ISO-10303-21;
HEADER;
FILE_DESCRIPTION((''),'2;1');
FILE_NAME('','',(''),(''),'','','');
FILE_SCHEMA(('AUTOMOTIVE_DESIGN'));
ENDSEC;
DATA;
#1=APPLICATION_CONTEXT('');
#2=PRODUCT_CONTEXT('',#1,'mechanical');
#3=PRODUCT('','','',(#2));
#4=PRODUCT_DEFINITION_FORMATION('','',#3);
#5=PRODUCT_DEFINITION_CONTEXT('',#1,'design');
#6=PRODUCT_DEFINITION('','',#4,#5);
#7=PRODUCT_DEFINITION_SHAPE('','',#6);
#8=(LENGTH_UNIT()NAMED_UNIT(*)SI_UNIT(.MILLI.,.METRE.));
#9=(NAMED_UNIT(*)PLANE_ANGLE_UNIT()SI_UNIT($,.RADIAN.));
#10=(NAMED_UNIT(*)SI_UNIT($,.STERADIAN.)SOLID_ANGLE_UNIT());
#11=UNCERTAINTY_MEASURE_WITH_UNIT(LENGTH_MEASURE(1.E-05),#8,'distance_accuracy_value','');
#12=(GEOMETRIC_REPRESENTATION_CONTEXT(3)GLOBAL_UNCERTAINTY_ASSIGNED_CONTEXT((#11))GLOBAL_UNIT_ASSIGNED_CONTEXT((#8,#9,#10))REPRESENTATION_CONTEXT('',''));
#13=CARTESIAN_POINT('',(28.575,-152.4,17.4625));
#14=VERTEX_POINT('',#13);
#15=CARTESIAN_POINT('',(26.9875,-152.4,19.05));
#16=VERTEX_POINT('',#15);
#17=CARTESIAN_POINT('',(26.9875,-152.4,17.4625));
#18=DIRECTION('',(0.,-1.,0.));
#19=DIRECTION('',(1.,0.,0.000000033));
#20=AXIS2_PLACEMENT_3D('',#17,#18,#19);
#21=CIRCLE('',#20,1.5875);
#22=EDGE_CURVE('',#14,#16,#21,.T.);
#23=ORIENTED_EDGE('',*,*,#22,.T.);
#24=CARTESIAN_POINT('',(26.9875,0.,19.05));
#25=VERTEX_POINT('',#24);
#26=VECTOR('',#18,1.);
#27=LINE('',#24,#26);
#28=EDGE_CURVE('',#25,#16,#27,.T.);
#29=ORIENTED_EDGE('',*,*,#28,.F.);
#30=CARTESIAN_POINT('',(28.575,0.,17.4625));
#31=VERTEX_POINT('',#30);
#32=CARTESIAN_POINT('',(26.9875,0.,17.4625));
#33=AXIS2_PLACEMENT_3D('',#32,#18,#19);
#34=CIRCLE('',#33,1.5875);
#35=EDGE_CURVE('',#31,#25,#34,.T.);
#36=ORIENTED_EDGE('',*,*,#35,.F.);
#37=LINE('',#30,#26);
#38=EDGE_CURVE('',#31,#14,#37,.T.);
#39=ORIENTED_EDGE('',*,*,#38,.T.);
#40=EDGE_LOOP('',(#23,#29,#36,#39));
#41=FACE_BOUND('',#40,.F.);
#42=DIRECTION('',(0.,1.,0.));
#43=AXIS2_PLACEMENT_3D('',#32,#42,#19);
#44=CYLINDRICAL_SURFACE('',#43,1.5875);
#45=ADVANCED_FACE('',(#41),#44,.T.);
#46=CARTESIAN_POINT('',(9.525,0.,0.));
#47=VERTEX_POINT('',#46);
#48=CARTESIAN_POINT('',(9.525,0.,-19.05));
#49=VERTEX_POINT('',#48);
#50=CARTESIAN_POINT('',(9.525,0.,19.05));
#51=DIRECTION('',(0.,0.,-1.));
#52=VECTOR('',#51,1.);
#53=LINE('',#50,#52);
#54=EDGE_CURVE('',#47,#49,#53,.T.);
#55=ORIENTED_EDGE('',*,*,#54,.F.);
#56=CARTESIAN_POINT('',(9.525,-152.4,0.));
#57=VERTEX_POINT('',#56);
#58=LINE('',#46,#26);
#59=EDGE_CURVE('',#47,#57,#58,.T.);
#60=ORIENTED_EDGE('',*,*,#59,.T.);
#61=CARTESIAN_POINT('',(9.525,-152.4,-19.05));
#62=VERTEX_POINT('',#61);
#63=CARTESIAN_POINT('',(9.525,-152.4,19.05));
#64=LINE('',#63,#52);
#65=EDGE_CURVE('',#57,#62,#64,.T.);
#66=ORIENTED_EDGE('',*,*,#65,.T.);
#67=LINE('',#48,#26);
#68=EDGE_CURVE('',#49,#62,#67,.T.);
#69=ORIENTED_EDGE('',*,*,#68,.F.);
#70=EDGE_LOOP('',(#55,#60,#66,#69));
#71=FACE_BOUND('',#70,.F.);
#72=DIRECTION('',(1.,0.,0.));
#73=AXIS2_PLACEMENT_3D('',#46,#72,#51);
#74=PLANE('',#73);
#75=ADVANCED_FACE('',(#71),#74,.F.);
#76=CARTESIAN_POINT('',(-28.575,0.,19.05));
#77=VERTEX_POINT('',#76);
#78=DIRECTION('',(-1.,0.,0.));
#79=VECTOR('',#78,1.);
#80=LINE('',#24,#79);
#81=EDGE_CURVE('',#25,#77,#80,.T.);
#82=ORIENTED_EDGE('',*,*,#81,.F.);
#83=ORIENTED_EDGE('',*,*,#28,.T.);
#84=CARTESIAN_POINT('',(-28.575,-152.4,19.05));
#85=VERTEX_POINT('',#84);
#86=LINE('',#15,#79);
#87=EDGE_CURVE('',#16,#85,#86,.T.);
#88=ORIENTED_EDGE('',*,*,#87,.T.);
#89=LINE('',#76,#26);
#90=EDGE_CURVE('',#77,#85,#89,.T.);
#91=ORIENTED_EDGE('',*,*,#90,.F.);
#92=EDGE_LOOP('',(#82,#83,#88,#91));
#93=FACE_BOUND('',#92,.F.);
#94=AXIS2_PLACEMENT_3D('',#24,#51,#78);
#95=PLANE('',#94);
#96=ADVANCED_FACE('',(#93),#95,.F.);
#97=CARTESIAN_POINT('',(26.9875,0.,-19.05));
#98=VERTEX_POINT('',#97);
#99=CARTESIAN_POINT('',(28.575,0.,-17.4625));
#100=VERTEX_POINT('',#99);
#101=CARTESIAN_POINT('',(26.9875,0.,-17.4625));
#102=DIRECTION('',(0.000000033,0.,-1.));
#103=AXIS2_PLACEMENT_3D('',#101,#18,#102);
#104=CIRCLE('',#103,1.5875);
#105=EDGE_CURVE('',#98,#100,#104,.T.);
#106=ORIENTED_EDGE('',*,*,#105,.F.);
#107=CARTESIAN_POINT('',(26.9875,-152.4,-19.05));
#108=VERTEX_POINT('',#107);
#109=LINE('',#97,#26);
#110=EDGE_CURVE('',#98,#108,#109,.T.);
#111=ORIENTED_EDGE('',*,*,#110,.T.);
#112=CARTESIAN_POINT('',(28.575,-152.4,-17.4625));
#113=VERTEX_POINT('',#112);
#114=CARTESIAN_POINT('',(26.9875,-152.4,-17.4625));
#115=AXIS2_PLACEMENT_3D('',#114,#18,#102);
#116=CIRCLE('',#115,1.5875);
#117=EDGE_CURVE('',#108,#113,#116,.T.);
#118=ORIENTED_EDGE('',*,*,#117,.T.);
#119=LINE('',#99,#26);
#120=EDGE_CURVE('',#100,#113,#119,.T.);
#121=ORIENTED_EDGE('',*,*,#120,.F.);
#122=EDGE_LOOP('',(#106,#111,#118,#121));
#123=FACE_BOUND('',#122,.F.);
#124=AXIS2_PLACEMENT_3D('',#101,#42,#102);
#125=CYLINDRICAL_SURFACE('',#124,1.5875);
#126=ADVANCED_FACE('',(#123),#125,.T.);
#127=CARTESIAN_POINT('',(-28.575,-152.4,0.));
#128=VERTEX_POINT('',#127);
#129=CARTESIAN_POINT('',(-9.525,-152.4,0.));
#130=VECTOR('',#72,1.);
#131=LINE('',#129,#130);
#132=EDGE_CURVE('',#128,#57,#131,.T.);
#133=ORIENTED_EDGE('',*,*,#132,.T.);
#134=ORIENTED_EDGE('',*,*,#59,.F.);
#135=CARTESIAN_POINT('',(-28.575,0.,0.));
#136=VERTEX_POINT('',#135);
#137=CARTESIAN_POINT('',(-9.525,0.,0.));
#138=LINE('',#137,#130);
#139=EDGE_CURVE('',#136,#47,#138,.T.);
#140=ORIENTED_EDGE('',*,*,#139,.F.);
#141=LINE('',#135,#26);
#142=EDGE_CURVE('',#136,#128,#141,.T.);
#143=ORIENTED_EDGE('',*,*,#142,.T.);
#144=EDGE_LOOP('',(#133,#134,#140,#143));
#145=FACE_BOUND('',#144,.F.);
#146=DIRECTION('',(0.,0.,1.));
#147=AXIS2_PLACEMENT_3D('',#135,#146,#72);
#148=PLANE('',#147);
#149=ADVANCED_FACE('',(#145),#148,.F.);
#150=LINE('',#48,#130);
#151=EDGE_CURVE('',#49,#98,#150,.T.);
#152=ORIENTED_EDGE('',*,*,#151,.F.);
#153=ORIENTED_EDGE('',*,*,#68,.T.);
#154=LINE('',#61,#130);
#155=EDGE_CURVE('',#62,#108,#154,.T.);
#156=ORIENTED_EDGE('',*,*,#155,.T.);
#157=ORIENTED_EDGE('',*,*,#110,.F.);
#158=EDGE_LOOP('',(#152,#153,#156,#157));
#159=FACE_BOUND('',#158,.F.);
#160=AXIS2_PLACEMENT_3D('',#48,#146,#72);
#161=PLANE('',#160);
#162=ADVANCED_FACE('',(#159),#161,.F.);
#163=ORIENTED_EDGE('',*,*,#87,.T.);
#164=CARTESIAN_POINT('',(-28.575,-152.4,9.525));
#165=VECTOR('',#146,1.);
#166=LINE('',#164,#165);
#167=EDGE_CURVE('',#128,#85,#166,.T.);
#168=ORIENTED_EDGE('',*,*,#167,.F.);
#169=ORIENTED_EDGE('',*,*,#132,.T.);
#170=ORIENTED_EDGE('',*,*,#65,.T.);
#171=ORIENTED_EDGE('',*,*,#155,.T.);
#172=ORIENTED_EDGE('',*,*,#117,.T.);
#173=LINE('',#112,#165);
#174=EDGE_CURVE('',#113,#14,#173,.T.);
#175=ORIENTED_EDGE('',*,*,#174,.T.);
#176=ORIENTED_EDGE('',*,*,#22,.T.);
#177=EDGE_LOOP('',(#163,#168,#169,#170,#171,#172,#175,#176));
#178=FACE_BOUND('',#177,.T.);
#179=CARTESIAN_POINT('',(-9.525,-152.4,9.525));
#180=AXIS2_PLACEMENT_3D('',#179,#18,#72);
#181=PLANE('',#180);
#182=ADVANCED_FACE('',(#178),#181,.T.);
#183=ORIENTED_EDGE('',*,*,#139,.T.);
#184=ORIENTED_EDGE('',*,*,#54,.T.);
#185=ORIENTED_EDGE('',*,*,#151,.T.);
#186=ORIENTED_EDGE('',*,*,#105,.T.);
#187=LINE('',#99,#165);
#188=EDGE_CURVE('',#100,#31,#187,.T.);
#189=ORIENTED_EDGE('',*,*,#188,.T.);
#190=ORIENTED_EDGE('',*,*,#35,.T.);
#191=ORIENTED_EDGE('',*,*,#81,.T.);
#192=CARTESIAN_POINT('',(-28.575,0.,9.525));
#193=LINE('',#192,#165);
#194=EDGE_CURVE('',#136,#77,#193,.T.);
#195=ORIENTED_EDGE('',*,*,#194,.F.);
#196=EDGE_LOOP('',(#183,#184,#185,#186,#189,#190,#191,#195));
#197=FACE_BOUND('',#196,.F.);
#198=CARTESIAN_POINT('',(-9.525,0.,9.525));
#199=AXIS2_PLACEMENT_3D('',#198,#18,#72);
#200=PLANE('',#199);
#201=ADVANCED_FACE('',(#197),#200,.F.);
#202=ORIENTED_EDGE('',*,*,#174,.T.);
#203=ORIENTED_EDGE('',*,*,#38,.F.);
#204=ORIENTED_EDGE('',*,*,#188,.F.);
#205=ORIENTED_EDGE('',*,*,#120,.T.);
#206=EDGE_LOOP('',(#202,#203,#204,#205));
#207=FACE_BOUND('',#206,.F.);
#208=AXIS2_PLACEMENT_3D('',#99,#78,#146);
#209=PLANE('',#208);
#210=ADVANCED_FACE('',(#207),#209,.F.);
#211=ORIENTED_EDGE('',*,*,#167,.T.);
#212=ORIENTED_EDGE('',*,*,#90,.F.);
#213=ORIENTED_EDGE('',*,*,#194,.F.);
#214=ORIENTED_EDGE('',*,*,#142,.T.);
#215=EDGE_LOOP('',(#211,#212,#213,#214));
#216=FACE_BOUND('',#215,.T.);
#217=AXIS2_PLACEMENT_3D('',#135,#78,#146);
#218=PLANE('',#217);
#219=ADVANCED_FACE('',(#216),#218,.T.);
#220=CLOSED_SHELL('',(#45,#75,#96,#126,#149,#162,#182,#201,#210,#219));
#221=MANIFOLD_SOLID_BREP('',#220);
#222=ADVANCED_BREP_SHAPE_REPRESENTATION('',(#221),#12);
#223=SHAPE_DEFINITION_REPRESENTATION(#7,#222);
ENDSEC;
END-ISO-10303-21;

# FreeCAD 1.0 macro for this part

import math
import FreeCAD as App
import Part
import Sketcher
from FreeCAD import Vector
Q = App.Units.Quantity

doc = App.newDocument("Part")
body = doc.addObject("PartDesign::Body", "Body")

# Sketch on XZ plane
sketch1 = body.newObject("Sketcher::SketchObject", "Sketch")
sketch1.AttachmentSupport = (doc.getObject("XZ_Plane"), [""])
sketch1.MapMode = "FlatFace"
sketch1.addGeometry(Part.LineSegment(Vector(-28.6, 19.1, 0), Vector(-28.6, 0, 0)), False)
sketch1.addGeometry(Part.LineSegment(Vector(-28.6, 0, 0), Vector(9.5, 0, 0)), False)
sketch1.addGeometry(Part.LineSegment(Vector(9.5, 0, 0), Vector(9.5, -19.1, 0)), False)
sketch1.addGeometry(Part.LineSegment(Vector(9.5, -19.1, 0), Vector(27, -19.1, 0)), False)
sketch1.addGeometry(Part.ArcOfCircle(Part.Circle(Vector(27, -17.5, 0), Vector(0, 0, 1), 1.6), math.radians(-90), math.radians(0)), False)
sketch1.addGeometry(Part.LineSegment(Vector(28.6, -17.5, 0), Vector(28.6, 17.5, 0)), False)
sketch1.addGeometry(Part.ArcOfCircle(Part.Circle(Vector(27, 17.5, 0), Vector(0, 0, 1), 1.6), math.radians(0), math.radians(90)), False)
sketch1.addGeometry(Part.LineSegment(Vector(27, 19.1, 0), Vector(-28.6, 19.1, 0)), False)
sketch1.addConstraint(Sketcher.Constraint("Coincident", 0, 2, 1, 1))
sketch1.addConstraint(Sketcher.Constraint("Coincident", 1, 2, 2, 1))
sketch1.addConstraint(Sketcher.Constraint("Coincident", 2, 2, 3, 1))
sketch1.addConstraint(Sketcher.Constraint("Tangent", 3, 2, 4, 1))
sketch1.addConstraint(Sketcher.Constraint("Tangent", 4, 2, 5, 1))
sketch1.addConstraint(Sketcher.Constraint("Tangent", 5, 2, 6, 1))
sketch1.addConstraint(Sketcher.Constraint("Tangent", 6, 2, 7, 1))
sketch1.addConstraint(Sketcher.Constraint("Coincident", 7, 2, 0, 1))
sketch1.addConstraint(Sketcher.Constraint("Vertical", 0))
sketch1.addConstraint(Sketcher.Constraint("Horizontal", 1))
sketch1.addConstraint(Sketcher.Constraint("Vertical", 2))
sketch1.addConstraint(Sketcher.Constraint("Horizontal", 3))
sketch1.addConstraint(Sketcher.Constraint("Vertical", 5))
sketch1.addConstraint(Sketcher.Constraint("Horizontal", 7))
sketch1.addConstraint(Sketcher.Constraint("Equal", 4, 6))
sketch1.addConstraint(Sketcher.Constraint("PointOnObject", 0, 2, -1))
sketch1.addConstraint(Sketcher.Constraint("Equal", 0, 2))
sketch1.addConstraint(Sketcher.Constraint("DistanceX", 1, 1, 1, 2, Q("1.5 in")))
sketch1.addConstraint(Sketcher.Constraint("Radius", 4, Q("0.0625 in")))
sketch1.addConstraint(Sketcher.Constraint("DistanceY", 0, 2, 0, 1, Q("0.75 in")))
sketch1.addConstraint(Sketcher.Constraint("DistanceX", 3, 1, 3, 2, Q("0.6875 in")))
sketch1.addConstraint(Sketcher.Constraint("DistanceX", -1, 1, 4, 3, Q("1.0625 in")))
pad1 = body.newObject("PartDesign::Pad", "Pad")
pad1.Profile = sketch1
pad1.Length = Q("6 in")

doc.recompute()
